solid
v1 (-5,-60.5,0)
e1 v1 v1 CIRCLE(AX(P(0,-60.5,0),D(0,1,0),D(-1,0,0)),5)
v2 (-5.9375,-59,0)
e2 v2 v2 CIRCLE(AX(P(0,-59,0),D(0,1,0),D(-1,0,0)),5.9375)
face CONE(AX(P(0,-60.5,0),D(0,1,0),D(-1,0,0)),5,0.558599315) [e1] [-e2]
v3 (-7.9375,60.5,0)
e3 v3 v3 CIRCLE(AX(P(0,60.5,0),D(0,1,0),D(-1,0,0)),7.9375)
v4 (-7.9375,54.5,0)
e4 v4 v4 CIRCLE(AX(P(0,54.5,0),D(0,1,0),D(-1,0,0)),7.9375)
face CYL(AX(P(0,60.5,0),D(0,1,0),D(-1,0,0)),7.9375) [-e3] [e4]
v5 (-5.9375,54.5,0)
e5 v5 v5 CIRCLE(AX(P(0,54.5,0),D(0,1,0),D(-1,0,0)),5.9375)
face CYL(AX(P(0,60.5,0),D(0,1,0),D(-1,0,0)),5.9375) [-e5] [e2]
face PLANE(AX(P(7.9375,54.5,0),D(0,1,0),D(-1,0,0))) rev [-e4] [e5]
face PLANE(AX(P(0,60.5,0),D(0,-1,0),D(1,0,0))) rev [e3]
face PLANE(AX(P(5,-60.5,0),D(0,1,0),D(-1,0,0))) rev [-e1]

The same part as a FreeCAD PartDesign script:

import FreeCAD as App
import Part
import Sketcher
from FreeCAD import Vector


def add_polygon(sketch, points):
    """Adds a closed chain of lines whose ends are joined by coincident constraints."""
    first, n = sketch.GeometryCount, len(points)
    for a, b in zip(points, points[1:] + points[:1]):
        sketch.addGeometry(Part.LineSegment(App.Vector(*a, 0), App.Vector(*b, 0)), False)
    for i in range(n):
        sketch.addConstraint(Sketcher.Constraint("Coincident", first + i, 2, first + (i + 1) % n, 1))

doc = App.newDocument("Part")
body = doc.addObject("PartDesign::Body", "Body")

sketch1 = body.newObject("Sketcher::SketchObject", "Sketch")
sketch1.AttachmentSupport = (doc.getObject("XY_Plane"), [""])
sketch1.MapMode = "FlatFace"
add_polygon(sketch1, [(7.9375, 60.5), (0, 60.5), (0, -60.5), (5, -60.5), (5.9375, -59), (5.9375, 54.5), (7.9375, 54.5)])
sketch1.addConstraint([
    Sketcher.Constraint("Horizontal", 0),
    Sketcher.Constraint("Vertical", 1),
    Sketcher.Constraint("Horizontal", 2),
    Sketcher.Constraint("Vertical", 4),
    Sketcher.Constraint("Horizontal", 5),
    Sketcher.Constraint("Vertical", 6),
    Sketcher.Constraint("Symmetric", 0, 2, 1, 2, -1, 1),
    Sketcher.Constraint("DistanceX", 2, 1, 2, 2, 5.0),
    Sketcher.Constraint("DistanceX", 5, 1, 5, 2, 2.0),
    Sketcher.Constraint("DistanceY", 1, 2, 1, 1, 121.0),
    Sketcher.Constraint("DistanceY", 6, 1, 6, 2, 6.0),
    Sketcher.Constraint("DistanceY", 4, 1, 4, 2, 113.5),
    Sketcher.Constraint("DistanceX", 0, 2, 0, 1, 7.9375),
])
revolution = body.newObject("PartDesign::Revolution", "Revolution")
revolution.Profile = sketch1
revolution.ReferenceAxis = (sketch1, ["V_Axis"])
revolution.Angle = 360

doc.recompute()
